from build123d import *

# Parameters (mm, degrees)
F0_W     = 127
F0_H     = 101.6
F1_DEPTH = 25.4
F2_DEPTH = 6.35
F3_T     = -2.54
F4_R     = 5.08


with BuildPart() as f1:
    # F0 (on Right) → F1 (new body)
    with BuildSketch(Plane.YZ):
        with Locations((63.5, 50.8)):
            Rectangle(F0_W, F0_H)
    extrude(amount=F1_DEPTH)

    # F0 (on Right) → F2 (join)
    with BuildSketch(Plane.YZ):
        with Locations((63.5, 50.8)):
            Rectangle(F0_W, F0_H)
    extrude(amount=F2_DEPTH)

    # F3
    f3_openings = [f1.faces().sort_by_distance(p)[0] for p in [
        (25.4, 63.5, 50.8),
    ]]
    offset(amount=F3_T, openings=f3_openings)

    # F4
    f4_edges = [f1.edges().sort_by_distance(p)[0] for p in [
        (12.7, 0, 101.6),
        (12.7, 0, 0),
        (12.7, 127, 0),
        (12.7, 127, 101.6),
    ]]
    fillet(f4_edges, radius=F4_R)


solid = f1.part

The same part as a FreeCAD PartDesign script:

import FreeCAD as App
import Part
import Sketcher

V = App.Vector
Q = App.Units.Quantity


def edges_at(feature, points):
    """Names of the edges that pass closest to the given points."""
    edges = feature.Shape.Edges
    near = lambda p: min(range(len(edges)), key=lambda i: edges[i].distToShape(Part.Vertex(*p))[0])
    return sorted({f"Edge{near(p) + 1}" for p in points})


def faces_at(feature, points):
    """Names of the faces that lie closest to the given points."""
    faces = feature.Shape.Faces
    near = lambda p: min(range(len(faces)), key=lambda i: faces[i].distToShape(Part.Vertex(*p))[0])
    return sorted({f"Face{near(p) + 1}" for p in points})


def add_polygon(sketch, points):
    """Adds a closed chain of lines whose ends are joined by coincident constraints."""
    first, n = sketch.GeometryCount, len(points)
    for a, b in zip(points, points[1:] + points[:1]):
        sketch.addGeometry(Part.LineSegment(App.Vector(*a, 0), App.Vector(*b, 0)), False)
    for i in range(n):
        sketch.addConstraint(Sketcher.Constraint("Coincident", first + i, 2, first + (i + 1) % n, 1))

doc = App.newDocument("Part")
params = doc.addObject("Spreadsheet::Sheet", "Params")
for row, (alias, value) in enumerate([
    ("sketch1_width", "5 in"),
    ("sketch1_height", "4 in"),
    ("pad1_length", "1 in"),
    ("sketch2_width", "5 in"),
    ("sketch2_height", "4 in"),
    ("pad2_length", "0.25 in"),
    ("thickness_wall", "0.1 in"),
    ("fillet_radius", "0.2 in"),
], start=1):
    params.set(f"A{row}", alias)
    params.set(f"B{row}", "=" + value)
    params.setAlias(f"B{row}", alias)

body = doc.addObject("PartDesign::Body", "Body")

sketch1 = body.newObject("Sketcher::SketchObject", "Sketch")
sketch1.AttachmentSupport = (doc.getObject("YZ_Plane"), [""])
sketch1.MapMode = "FlatFace"
add_polygon(sketch1, [(0, 102), (0, 0), (127, 0), (127, 102)])
sketch1.addConstraint([
    Sketcher.Constraint("Vertical", 0),
    Sketcher.Constraint("Horizontal", 1),
    Sketcher.Constraint("Vertical", 2),
    Sketcher.Constraint("Horizontal", 3),
    Sketcher.Constraint("Coincident", 0, 2, -1, 1),
    Sketcher.Constraint("DistanceX", 1, 1, 1, 2, Q("5 in")),
    Sketcher.Constraint("DistanceY", 0, 2, 0, 1, Q("4 in")),
])
sketch1.setExpression("Constraints[9]", "Params.sketch1_width")
sketch1.setExpression("Constraints[10]", "Params.sketch1_height")
pad1 = body.newObject("PartDesign::Pad", "Pad")
pad1.Profile = sketch1
pad1.setExpression("Length", "Params.pad1_length")

sketch2 = body.newObject("Sketcher::SketchObject", "Sketch001")
sketch2.AttachmentSupport = (doc.getObject("YZ_Plane"), [""])
sketch2.MapMode = "FlatFace"
add_polygon(sketch2, [(0, 102), (0, 0), (127, 0), (127, 102)])
sketch2.addConstraint([
    Sketcher.Constraint("Vertical", 0),
    Sketcher.Constraint("Horizontal", 1),
    Sketcher.Constraint("Vertical", 2),
    Sketcher.Constraint("Horizontal", 3),
    Sketcher.Constraint("Coincident", 0, 2, -1, 1),
    Sketcher.Constraint("DistanceX", 1, 1, 1, 2, Q("5 in")),
    Sketcher.Constraint("DistanceY", 0, 2, 0, 1, Q("4 in")),
])
sketch2.setExpression("Constraints[9]", "Params.sketch2_width")
sketch2.setExpression("Constraints[10]", "Params.sketch2_height")
pad2 = body.newObject("PartDesign::Pad", "Pad001")
pad2.Profile = sketch2
pad2.setExpression("Length", "Params.pad2_length")
doc.recompute()

thickness = body.newObject("PartDesign::Thickness", "Thickness")
thickness.Base = (pad2, faces_at(pad2, [(25.4, 63.5, 50.8)]))
thickness.setExpression("Value", "Params.thickness_wall")
thickness.Reversed = True
thickness.Join = "Arc"
doc.recompute()

fillet = body.newObject("PartDesign::Fillet", "Fillet")
fillet.Base = (thickness, edges_at(thickness, [
    (12.7, 0, 101.6),
    (12.7, 0, 0),
    (12.7, 127, 0),
    (12.7, 127, 101.6),
]))
fillet.setExpression("Radius", "Params.fillet_radius")

doc.recompute()
